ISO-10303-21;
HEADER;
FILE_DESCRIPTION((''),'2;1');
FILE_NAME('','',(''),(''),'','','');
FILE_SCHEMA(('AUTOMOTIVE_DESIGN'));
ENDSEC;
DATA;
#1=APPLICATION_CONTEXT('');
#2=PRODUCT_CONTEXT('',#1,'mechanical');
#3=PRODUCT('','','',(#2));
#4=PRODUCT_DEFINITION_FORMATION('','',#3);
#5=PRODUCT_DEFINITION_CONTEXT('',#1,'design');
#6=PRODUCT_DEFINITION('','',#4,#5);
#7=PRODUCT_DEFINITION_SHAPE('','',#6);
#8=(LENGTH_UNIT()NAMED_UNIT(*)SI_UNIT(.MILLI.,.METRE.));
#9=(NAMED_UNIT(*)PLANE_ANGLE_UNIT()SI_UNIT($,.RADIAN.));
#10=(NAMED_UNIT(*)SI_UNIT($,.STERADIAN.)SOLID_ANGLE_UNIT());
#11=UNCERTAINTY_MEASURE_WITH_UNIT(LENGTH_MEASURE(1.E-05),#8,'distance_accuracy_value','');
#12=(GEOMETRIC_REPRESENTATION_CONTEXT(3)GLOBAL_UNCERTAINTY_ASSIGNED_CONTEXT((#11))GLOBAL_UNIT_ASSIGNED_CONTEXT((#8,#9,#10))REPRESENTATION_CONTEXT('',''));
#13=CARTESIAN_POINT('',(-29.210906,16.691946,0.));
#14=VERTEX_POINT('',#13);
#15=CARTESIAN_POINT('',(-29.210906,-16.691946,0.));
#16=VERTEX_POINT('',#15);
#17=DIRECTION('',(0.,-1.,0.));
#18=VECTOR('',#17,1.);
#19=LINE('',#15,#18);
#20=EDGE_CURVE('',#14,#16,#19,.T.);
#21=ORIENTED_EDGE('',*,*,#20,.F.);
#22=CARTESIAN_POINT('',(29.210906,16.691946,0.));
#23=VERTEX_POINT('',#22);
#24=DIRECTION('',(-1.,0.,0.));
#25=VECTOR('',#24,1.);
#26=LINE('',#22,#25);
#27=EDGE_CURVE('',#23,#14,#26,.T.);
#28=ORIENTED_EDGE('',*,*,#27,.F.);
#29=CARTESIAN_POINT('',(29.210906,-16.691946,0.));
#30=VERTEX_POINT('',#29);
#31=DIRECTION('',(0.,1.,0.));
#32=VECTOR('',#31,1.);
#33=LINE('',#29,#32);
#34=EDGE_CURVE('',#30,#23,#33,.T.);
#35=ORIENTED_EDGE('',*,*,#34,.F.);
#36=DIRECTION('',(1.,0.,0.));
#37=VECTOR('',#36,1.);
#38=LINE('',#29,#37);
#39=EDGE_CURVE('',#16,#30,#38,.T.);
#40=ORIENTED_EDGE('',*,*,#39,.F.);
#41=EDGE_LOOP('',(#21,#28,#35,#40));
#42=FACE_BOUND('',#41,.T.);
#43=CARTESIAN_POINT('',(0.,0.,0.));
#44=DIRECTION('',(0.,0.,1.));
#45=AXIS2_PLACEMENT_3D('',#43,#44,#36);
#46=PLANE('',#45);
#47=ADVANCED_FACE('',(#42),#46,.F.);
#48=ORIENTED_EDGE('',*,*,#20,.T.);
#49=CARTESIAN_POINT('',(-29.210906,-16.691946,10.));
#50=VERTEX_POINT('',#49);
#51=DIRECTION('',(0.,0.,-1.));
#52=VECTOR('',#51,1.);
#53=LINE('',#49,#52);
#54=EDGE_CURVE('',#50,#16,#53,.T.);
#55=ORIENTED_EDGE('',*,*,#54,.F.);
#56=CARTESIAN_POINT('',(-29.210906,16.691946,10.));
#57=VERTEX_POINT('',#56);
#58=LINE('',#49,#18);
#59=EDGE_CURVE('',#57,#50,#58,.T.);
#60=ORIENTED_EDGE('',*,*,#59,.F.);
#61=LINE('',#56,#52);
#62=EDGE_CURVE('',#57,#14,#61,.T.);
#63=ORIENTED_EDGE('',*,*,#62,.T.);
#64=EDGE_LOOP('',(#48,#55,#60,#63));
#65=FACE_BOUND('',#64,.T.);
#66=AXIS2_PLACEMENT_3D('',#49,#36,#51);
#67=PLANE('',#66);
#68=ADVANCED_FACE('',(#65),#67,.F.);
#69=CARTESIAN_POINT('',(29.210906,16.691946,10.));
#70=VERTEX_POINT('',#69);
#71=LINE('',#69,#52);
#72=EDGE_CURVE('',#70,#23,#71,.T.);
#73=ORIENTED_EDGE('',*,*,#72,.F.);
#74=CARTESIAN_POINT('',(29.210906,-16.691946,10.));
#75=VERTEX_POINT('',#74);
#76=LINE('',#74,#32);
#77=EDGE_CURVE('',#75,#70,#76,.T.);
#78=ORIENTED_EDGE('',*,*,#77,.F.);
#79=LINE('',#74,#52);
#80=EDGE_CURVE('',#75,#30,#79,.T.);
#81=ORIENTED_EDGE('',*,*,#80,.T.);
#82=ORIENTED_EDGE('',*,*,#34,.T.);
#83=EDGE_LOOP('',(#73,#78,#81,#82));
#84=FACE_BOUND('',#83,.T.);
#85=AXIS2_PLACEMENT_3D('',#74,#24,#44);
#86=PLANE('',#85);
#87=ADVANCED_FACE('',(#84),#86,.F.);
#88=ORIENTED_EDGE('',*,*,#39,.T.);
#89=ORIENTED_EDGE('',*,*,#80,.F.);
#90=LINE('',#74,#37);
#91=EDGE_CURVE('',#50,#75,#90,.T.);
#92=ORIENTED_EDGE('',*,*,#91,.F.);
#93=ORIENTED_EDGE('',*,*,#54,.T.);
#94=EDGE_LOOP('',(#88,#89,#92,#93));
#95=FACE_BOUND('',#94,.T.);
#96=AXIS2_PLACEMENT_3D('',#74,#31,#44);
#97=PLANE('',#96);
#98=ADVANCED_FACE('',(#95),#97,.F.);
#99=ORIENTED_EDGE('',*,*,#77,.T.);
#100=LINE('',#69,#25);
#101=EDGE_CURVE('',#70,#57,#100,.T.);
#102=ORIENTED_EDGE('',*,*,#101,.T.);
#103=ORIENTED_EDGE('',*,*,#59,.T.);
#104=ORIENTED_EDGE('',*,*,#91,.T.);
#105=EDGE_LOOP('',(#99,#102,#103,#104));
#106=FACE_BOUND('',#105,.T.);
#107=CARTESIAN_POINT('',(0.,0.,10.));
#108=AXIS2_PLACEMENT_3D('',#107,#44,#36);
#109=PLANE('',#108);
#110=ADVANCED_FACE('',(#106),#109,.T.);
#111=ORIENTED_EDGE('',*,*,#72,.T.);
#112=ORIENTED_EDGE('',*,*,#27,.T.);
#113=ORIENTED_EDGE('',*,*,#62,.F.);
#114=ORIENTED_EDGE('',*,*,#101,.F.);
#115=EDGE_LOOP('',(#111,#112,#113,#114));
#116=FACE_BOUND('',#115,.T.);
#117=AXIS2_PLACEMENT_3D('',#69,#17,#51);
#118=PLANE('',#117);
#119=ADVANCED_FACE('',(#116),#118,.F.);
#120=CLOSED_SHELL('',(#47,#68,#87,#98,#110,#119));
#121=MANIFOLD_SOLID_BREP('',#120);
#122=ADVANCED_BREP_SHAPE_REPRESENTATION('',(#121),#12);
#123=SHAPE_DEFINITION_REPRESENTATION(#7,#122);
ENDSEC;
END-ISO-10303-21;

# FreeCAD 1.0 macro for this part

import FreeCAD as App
import Part
import Sketcher

V = App.Vector

doc = App.newDocument("Part")
body = doc.addObject("PartDesign::Body", "Body")

# Sketch on XY plane
sketch1 = body.newObject("Sketcher::SketchObject", "Sketch")
sketch1.AttachmentSupport = (doc.getObject("XY_Plane"), [""])
sketch1.MapMode = "FlatFace"
sketch1.addGeometry([
    Part.LineSegment(V(-29, 17, 0), V(-29, -17, 0)),
    Part.LineSegment(V(-29, -17, 0), V(29, -17, 0)),
    Part.LineSegment(V(29, -17, 0), V(29, 17, 0)),
    Part.LineSegment(V(29, 17, 0), V(-29, 17, 0)),
], False)
sketch1.addConstraint([
    Sketcher.Constraint("Coincident", 0, 2, 1, 1),
    Sketcher.Constraint("Coincident", 1, 2, 2, 1),
    Sketcher.Constraint("Coincident", 2, 2, 3, 1),
    Sketcher.Constraint("Coincident", 3, 2, 0, 1),
    Sketcher.Constraint("Vertical", 0),
    Sketcher.Constraint("Horizontal", 1),
    Sketcher.Constraint("Vertical", 2),
    Sketcher.Constraint("Horizontal", 3),
    Sketcher.Constraint("Symmetric", 0, 2, 2, 2, -1, 1),
    Sketcher.Constraint("DistanceX", 1, 1, 1, 2, 58.421812),
    Sketcher.Constraint("DistanceY", 0, 2, 0, 1, 33.383893),
])
pad1 = body.newObject("PartDesign::Pad", "Pad")
pad1.Profile = sketch1
pad1.Length = 10

doc.recompute()
